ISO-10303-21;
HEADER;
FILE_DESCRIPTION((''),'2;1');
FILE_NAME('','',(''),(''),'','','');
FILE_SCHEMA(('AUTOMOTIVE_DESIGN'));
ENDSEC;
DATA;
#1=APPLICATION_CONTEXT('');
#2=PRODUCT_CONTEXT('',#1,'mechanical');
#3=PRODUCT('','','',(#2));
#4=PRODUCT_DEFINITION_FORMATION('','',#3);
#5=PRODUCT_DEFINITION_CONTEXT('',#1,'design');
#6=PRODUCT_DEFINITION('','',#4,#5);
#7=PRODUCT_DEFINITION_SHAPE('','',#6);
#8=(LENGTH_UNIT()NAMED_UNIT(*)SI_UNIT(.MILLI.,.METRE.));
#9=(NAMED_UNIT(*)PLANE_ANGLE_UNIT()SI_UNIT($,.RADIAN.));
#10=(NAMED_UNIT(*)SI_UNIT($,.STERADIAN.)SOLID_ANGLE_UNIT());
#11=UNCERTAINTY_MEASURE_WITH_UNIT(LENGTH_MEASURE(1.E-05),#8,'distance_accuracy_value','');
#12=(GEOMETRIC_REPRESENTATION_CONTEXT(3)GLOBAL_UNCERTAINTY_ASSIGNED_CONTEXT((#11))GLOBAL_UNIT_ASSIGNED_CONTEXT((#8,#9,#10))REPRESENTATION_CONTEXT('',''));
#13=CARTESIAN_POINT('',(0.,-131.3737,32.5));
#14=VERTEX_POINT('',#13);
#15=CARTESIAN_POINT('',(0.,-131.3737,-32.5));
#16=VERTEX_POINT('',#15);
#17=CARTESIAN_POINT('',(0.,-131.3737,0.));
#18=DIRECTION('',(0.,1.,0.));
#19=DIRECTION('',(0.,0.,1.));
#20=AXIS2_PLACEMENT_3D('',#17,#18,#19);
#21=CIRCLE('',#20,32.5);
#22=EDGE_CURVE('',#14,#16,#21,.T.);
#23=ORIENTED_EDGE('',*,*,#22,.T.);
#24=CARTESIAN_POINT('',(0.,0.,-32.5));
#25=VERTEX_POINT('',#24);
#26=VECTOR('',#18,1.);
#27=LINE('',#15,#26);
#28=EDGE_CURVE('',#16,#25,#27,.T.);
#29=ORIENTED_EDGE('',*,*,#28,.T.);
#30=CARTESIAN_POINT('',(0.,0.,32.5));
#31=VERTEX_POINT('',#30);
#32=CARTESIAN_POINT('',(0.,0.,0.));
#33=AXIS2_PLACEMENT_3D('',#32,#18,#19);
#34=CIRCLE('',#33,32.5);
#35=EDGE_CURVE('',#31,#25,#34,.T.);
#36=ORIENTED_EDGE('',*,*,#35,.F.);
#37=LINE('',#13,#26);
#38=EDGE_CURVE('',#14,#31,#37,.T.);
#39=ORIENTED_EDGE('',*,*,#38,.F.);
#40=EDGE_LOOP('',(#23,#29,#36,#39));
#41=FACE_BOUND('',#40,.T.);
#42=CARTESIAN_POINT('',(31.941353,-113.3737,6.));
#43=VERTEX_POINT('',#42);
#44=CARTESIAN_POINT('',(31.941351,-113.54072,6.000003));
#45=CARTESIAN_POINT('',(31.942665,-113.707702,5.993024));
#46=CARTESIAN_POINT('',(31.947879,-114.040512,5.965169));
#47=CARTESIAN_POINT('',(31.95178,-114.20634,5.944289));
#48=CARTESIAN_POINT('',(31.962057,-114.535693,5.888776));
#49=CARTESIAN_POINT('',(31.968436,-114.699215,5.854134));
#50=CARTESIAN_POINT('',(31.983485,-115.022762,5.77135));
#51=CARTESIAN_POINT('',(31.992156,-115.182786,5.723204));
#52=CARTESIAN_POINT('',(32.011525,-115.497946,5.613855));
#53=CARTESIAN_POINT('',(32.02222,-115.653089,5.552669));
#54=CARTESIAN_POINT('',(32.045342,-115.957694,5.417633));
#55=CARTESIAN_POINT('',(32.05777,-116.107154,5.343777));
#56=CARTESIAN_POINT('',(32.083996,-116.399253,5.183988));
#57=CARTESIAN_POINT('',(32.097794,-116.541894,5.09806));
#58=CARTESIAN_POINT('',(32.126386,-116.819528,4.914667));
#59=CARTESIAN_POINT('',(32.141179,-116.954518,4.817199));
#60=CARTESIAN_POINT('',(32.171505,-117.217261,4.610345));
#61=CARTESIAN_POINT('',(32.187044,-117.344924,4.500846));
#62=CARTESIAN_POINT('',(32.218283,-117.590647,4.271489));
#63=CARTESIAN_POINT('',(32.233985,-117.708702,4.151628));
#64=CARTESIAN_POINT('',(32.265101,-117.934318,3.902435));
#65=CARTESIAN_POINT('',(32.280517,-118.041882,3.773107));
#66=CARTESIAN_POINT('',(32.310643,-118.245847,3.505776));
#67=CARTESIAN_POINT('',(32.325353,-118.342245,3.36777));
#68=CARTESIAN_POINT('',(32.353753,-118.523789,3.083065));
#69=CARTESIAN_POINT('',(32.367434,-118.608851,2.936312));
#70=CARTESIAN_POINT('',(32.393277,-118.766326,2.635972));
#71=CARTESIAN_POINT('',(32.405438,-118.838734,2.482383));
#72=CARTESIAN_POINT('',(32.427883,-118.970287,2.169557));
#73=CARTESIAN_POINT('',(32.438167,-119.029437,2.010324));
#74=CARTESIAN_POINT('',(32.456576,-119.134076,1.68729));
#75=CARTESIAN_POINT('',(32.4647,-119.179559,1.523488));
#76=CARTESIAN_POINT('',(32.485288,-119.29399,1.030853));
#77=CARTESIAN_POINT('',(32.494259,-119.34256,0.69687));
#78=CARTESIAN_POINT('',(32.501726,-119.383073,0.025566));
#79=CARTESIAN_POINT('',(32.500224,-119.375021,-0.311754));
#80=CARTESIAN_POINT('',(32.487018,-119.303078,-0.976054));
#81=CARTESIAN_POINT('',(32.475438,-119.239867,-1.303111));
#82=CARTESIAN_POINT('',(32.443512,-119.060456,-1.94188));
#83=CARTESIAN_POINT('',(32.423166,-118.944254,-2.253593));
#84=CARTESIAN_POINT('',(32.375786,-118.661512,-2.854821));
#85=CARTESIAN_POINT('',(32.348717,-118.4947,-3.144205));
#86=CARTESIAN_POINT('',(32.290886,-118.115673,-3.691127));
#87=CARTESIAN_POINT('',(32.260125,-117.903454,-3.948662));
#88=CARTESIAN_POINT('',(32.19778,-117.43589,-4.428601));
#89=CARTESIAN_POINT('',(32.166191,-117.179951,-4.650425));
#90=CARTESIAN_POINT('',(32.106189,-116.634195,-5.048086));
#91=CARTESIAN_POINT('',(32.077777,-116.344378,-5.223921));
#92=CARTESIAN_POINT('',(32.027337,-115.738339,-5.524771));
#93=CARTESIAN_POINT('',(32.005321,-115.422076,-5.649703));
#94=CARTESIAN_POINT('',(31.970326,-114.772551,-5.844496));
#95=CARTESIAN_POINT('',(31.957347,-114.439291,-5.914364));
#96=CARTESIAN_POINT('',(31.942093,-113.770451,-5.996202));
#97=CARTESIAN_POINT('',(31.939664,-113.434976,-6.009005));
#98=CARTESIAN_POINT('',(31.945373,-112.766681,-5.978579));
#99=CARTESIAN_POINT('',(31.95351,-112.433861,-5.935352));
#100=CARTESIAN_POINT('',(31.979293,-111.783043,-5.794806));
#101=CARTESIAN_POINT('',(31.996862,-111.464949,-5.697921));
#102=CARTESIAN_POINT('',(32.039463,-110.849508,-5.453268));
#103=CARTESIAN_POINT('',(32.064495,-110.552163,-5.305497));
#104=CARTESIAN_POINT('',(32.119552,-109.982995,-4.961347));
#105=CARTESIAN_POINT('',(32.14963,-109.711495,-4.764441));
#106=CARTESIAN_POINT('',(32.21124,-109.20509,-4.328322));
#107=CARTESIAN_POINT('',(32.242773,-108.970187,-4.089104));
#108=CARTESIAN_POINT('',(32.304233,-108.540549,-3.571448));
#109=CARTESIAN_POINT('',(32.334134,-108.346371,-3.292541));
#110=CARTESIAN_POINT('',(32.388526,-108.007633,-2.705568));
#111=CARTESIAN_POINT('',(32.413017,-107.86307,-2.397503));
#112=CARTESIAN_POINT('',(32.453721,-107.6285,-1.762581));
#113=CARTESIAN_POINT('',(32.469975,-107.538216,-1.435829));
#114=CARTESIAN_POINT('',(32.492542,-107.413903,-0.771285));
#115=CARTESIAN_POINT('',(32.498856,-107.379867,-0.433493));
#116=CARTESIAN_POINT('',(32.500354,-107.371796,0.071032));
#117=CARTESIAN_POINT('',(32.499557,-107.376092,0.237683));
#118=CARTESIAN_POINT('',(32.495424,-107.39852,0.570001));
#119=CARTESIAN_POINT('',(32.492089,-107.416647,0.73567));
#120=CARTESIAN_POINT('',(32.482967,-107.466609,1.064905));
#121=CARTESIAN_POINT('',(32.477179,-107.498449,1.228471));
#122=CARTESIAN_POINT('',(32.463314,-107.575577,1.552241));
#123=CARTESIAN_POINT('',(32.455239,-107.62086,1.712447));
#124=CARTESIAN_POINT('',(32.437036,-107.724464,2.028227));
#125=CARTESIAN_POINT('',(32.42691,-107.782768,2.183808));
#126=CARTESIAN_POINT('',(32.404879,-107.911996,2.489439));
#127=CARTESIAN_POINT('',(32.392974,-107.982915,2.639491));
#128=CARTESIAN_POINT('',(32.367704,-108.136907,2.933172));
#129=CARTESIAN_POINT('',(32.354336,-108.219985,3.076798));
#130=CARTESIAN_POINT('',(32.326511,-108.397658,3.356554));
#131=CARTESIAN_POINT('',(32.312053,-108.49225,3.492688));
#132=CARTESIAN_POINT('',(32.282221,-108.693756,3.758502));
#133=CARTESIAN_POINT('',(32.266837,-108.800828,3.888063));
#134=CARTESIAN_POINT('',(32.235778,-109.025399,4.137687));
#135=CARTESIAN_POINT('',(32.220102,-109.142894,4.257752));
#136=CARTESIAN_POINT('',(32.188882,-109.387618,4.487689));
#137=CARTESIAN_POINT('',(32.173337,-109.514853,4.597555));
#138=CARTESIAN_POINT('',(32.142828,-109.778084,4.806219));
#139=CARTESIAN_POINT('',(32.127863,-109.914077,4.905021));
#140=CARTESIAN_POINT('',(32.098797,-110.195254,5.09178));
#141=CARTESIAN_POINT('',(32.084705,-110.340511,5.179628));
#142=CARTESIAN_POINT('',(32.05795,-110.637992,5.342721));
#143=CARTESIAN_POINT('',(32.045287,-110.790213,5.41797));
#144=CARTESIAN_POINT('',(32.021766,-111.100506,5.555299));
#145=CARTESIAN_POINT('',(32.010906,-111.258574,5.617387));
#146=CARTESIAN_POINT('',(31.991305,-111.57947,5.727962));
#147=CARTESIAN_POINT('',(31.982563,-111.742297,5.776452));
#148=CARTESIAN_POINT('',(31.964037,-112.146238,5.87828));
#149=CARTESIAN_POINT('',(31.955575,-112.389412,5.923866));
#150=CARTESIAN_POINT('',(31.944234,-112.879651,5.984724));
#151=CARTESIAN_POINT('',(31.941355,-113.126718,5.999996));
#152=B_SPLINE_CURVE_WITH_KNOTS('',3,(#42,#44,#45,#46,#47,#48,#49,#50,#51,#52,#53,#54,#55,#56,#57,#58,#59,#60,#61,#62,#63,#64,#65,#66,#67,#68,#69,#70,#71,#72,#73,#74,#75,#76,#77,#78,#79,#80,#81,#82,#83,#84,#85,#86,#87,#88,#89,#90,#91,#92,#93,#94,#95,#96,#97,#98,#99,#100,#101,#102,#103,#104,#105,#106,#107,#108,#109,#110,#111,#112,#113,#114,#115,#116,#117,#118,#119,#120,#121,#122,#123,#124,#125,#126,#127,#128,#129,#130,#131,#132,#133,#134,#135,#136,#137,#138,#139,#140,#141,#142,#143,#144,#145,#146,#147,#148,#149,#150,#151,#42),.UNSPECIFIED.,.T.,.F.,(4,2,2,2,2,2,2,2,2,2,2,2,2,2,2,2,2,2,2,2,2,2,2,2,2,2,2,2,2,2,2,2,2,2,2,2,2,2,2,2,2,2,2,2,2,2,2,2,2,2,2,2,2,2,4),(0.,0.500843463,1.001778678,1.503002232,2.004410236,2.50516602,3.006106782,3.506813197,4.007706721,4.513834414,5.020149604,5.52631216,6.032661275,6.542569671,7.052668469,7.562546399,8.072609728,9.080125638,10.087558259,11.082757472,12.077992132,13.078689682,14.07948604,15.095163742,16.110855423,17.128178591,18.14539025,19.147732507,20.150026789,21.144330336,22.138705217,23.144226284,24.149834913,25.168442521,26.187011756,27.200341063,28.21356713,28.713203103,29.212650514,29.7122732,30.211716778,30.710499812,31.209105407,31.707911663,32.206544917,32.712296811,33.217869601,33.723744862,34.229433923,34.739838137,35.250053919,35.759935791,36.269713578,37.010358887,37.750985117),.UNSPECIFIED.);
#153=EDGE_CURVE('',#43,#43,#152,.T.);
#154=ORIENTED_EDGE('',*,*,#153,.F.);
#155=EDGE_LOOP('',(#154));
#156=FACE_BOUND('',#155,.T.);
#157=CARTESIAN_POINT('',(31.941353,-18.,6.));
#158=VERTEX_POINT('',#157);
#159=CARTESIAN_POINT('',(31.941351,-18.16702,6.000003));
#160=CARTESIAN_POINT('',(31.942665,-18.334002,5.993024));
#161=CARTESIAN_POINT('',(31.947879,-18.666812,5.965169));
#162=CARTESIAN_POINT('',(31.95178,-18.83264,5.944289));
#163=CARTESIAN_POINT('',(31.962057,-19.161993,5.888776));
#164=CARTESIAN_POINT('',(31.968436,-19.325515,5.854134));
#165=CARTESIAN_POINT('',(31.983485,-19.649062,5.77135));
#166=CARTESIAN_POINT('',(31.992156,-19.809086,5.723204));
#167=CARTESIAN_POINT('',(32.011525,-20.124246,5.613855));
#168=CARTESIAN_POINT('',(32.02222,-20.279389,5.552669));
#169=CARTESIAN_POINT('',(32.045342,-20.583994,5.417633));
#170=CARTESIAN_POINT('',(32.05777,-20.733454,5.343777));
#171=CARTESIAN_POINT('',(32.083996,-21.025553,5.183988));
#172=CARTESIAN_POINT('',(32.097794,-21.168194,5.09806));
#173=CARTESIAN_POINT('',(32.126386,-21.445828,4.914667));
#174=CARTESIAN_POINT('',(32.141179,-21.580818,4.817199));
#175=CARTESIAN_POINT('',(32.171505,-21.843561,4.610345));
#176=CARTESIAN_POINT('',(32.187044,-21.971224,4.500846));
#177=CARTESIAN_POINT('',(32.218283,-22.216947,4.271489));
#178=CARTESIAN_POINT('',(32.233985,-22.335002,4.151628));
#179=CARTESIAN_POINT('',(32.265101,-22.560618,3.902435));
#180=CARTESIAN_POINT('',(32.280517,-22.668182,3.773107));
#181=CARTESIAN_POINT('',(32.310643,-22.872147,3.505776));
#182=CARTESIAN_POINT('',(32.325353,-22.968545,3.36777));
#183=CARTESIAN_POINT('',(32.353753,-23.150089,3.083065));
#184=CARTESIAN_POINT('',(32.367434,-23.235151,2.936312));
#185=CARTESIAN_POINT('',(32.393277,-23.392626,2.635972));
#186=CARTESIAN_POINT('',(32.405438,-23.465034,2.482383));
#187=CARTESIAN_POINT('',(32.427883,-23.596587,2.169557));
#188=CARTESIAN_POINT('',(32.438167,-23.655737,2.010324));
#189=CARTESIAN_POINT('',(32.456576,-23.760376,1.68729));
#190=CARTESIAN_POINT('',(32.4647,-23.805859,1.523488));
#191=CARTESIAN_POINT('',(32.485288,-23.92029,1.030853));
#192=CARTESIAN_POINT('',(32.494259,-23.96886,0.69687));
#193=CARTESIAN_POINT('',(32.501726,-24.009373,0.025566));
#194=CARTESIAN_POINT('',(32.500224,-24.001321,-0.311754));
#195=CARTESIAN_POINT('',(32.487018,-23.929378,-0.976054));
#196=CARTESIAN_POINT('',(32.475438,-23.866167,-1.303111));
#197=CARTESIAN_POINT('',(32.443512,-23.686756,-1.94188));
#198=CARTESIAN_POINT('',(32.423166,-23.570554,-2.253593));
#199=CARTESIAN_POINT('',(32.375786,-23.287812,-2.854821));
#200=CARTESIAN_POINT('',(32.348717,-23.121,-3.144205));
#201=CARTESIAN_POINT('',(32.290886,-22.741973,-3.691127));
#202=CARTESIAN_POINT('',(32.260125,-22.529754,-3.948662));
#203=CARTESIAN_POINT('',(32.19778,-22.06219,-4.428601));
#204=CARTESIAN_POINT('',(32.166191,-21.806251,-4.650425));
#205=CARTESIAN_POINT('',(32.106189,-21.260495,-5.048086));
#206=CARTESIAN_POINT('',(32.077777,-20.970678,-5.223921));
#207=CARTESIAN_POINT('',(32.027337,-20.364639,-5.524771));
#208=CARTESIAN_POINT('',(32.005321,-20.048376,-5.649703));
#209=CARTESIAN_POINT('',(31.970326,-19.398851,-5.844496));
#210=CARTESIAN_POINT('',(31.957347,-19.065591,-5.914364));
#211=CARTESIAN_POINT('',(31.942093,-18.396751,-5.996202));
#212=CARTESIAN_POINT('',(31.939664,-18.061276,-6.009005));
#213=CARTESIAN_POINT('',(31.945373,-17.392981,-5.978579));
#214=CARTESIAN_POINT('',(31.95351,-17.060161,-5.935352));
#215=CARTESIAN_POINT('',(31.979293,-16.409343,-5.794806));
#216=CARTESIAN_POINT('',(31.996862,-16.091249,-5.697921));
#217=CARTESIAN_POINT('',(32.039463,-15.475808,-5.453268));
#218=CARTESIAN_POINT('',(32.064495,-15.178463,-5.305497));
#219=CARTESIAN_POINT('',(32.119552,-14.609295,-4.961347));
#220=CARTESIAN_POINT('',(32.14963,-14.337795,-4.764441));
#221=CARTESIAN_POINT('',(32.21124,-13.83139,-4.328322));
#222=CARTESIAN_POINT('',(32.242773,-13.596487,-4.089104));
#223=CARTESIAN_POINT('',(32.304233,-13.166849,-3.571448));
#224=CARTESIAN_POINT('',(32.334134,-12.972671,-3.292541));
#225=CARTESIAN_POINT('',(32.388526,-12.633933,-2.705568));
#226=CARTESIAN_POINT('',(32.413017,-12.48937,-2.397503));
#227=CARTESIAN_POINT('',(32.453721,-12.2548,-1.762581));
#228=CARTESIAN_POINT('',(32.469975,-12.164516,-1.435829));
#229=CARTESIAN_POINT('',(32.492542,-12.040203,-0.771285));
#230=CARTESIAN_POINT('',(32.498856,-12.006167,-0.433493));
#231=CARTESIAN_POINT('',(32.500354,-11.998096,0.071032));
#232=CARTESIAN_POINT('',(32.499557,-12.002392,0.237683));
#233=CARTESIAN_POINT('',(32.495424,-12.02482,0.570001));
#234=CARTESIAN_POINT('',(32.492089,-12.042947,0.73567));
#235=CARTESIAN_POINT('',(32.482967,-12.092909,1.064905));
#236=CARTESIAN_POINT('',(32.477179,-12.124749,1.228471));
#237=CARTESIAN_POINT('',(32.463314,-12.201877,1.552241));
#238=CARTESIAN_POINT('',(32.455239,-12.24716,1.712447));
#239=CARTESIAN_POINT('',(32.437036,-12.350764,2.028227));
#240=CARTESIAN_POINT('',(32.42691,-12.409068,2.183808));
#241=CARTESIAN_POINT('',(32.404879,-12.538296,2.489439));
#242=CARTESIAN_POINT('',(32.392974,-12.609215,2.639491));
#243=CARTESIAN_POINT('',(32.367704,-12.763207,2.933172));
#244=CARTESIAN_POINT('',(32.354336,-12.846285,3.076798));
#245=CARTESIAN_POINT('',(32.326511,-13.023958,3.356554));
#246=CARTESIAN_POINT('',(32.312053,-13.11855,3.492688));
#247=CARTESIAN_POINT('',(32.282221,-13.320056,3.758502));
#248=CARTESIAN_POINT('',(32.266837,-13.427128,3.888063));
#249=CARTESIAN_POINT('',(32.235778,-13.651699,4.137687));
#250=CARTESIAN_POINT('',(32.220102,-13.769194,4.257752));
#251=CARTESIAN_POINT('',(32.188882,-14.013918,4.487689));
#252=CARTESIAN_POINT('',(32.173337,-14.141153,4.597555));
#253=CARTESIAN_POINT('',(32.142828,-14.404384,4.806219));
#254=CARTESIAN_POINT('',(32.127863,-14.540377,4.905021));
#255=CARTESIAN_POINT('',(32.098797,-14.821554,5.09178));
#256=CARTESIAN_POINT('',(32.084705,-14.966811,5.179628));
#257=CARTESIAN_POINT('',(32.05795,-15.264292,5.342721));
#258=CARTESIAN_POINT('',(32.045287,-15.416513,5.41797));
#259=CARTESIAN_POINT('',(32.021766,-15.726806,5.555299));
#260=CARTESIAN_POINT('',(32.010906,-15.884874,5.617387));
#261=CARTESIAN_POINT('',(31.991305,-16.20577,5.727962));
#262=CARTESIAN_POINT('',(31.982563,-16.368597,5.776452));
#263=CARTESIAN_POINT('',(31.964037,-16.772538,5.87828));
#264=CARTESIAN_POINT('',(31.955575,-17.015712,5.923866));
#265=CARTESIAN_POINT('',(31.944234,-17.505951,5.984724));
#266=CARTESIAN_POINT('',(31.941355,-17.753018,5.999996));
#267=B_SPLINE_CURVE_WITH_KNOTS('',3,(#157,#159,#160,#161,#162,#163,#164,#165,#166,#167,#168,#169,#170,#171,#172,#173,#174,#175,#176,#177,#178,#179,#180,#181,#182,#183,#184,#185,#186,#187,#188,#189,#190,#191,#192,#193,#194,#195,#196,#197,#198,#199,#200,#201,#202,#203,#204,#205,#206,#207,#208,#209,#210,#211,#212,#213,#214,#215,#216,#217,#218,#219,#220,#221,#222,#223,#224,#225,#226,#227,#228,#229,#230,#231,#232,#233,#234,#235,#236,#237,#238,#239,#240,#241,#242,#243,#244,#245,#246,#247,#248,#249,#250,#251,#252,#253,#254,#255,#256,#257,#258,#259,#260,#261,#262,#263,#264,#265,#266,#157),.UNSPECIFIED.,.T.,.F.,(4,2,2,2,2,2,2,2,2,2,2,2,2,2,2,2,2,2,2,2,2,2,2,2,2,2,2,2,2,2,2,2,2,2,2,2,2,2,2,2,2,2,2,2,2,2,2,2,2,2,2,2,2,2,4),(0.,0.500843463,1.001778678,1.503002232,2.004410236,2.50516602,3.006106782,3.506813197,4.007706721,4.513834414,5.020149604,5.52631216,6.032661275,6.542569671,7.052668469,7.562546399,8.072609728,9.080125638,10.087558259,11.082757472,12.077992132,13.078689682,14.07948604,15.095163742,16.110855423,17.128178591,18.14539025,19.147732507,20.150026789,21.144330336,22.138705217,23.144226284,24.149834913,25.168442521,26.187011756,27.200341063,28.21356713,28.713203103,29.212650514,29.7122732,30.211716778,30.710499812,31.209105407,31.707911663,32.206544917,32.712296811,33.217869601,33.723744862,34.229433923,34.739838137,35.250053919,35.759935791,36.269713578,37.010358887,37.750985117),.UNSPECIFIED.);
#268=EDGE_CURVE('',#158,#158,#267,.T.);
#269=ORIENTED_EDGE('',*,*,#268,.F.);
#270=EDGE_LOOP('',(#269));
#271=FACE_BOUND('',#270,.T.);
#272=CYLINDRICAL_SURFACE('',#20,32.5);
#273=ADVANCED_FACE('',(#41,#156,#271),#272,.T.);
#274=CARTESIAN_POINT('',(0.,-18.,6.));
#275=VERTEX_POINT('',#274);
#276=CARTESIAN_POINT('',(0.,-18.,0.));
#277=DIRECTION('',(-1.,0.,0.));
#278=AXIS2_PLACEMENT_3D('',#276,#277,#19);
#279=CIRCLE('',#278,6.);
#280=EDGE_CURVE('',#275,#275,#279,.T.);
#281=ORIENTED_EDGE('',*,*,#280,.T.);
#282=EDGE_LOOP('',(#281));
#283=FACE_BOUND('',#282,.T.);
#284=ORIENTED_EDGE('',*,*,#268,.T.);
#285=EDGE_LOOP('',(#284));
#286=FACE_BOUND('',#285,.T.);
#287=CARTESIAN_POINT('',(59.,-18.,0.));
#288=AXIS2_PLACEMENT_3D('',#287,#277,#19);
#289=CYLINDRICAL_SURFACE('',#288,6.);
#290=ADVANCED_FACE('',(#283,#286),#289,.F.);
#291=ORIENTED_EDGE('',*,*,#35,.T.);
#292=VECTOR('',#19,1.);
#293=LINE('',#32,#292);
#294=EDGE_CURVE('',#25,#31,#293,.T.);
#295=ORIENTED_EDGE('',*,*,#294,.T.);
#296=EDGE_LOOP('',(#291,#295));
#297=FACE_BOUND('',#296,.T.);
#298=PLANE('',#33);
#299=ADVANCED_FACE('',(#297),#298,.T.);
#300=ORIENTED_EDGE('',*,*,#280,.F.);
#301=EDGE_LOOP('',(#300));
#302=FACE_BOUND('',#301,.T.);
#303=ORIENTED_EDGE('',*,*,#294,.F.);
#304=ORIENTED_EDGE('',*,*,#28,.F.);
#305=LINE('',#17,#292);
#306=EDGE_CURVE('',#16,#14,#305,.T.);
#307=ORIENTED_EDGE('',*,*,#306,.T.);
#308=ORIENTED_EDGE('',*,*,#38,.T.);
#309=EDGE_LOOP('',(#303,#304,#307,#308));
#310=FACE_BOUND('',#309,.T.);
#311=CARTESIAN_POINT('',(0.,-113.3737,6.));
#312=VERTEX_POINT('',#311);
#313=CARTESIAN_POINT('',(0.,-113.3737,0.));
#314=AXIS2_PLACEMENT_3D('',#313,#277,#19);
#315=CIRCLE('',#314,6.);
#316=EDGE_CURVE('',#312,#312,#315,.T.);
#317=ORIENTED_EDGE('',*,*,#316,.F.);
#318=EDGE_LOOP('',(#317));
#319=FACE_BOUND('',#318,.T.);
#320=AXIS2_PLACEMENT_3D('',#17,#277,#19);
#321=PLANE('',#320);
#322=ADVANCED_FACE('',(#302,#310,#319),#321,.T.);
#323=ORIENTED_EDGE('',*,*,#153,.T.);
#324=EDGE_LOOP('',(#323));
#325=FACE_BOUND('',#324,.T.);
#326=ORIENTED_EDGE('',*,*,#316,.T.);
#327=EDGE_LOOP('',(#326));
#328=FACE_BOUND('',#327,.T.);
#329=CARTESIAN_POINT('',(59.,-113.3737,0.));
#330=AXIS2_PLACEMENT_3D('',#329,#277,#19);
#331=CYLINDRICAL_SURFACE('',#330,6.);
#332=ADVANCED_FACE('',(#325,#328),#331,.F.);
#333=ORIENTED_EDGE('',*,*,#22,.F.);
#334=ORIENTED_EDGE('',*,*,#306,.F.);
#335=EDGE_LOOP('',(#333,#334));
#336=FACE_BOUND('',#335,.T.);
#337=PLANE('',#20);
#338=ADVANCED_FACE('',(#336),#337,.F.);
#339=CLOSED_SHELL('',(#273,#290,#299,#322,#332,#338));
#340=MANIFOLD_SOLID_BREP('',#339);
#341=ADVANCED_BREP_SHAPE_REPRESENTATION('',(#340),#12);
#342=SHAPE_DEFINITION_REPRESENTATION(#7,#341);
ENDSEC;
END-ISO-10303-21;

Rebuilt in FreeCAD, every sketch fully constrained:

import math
import FreeCAD as App
import Part
import Sketcher

V = App.Vector

doc = App.newDocument("Part")
body = doc.addObject("PartDesign::Body", "Body")

sketch1 = doc.addObject("Sketcher::SketchObject", "Sketch")
body.addObject(sketch1)
sketch1.AttachmentSupport = (doc.XZ_Plane, [""])
sketch1.MapMode = "FlatFace"
sketch1.addGeometry([
    Part.ArcOfCircle(Part.Circle(V(0, 0, 0), V(0, 0, 1), 32), math.radians(-90), math.radians(0)),
    Part.LineSegment(V(0, -32, 0), V(0, 32, 0)),
    Part.ArcOfCircle(Part.Circle(V(0, 0, 0), V(0, 0, 1), 32), math.radians(0), math.radians(90)),
], False)
sketch1.addConstraint([
    Sketcher.Constraint("Coincident", 0, 1, 1, 1),
    Sketcher.Constraint("Coincident", 1, 2, 2, 2),
    Sketcher.Constraint("Tangent", 2, 1, 0, 2),
    Sketcher.Constraint("Vertical", 1),
    Sketcher.Constraint("Coincident", 0, 3, -1, 1),
    Sketcher.Constraint("Equal", 0, 2),
    Sketcher.Constraint("PointOnObject", 0, 1, -2),
    Sketcher.Constraint("PointOnObject", 2, 1, -1),
    Sketcher.Constraint("Radius", 0, 32.5),
])
pad1 = doc.addObject("PartDesign::Pad", "Pad")
body.addObject(pad1)
pad1.Profile = sketch1
pad1.Length = 131.3737

sketch2 = doc.addObject("Sketcher::SketchObject", "Sketch001")
body.addObject(sketch2)
sketch2.AttachmentSupport = (doc.YZ_Plane, [""])
sketch2.MapMode = "FlatFace"
sketch2.addGeometry([
    Part.Circle(V(-18, 0, 0), V(0, 0, 1), 6),
    Part.Circle(V(-113, 0, 0), V(0, 0, 1), 6),
], False)
sketch2.addConstraint([
    Sketcher.Constraint("Equal", 0, 1),
    Sketcher.Constraint("PointOnObject", 0, 3, -1),
    Sketcher.Constraint("PointOnObject", 1, 3, -1),
    Sketcher.Constraint("Diameter", 0, 12.0),
    Sketcher.Constraint("DistanceX", 0, 3, -1, 1, 18.0),
    Sketcher.Constraint("DistanceX", 1, 3, -1, 1, 113.3737),
])
pocket1 = doc.addObject("PartDesign::Pocket", "Pocket")
body.addObject(pocket1)
pocket1.Profile = sketch2
pocket1.Length = 59
pocket1.Reversed = True

doc.recompute()
